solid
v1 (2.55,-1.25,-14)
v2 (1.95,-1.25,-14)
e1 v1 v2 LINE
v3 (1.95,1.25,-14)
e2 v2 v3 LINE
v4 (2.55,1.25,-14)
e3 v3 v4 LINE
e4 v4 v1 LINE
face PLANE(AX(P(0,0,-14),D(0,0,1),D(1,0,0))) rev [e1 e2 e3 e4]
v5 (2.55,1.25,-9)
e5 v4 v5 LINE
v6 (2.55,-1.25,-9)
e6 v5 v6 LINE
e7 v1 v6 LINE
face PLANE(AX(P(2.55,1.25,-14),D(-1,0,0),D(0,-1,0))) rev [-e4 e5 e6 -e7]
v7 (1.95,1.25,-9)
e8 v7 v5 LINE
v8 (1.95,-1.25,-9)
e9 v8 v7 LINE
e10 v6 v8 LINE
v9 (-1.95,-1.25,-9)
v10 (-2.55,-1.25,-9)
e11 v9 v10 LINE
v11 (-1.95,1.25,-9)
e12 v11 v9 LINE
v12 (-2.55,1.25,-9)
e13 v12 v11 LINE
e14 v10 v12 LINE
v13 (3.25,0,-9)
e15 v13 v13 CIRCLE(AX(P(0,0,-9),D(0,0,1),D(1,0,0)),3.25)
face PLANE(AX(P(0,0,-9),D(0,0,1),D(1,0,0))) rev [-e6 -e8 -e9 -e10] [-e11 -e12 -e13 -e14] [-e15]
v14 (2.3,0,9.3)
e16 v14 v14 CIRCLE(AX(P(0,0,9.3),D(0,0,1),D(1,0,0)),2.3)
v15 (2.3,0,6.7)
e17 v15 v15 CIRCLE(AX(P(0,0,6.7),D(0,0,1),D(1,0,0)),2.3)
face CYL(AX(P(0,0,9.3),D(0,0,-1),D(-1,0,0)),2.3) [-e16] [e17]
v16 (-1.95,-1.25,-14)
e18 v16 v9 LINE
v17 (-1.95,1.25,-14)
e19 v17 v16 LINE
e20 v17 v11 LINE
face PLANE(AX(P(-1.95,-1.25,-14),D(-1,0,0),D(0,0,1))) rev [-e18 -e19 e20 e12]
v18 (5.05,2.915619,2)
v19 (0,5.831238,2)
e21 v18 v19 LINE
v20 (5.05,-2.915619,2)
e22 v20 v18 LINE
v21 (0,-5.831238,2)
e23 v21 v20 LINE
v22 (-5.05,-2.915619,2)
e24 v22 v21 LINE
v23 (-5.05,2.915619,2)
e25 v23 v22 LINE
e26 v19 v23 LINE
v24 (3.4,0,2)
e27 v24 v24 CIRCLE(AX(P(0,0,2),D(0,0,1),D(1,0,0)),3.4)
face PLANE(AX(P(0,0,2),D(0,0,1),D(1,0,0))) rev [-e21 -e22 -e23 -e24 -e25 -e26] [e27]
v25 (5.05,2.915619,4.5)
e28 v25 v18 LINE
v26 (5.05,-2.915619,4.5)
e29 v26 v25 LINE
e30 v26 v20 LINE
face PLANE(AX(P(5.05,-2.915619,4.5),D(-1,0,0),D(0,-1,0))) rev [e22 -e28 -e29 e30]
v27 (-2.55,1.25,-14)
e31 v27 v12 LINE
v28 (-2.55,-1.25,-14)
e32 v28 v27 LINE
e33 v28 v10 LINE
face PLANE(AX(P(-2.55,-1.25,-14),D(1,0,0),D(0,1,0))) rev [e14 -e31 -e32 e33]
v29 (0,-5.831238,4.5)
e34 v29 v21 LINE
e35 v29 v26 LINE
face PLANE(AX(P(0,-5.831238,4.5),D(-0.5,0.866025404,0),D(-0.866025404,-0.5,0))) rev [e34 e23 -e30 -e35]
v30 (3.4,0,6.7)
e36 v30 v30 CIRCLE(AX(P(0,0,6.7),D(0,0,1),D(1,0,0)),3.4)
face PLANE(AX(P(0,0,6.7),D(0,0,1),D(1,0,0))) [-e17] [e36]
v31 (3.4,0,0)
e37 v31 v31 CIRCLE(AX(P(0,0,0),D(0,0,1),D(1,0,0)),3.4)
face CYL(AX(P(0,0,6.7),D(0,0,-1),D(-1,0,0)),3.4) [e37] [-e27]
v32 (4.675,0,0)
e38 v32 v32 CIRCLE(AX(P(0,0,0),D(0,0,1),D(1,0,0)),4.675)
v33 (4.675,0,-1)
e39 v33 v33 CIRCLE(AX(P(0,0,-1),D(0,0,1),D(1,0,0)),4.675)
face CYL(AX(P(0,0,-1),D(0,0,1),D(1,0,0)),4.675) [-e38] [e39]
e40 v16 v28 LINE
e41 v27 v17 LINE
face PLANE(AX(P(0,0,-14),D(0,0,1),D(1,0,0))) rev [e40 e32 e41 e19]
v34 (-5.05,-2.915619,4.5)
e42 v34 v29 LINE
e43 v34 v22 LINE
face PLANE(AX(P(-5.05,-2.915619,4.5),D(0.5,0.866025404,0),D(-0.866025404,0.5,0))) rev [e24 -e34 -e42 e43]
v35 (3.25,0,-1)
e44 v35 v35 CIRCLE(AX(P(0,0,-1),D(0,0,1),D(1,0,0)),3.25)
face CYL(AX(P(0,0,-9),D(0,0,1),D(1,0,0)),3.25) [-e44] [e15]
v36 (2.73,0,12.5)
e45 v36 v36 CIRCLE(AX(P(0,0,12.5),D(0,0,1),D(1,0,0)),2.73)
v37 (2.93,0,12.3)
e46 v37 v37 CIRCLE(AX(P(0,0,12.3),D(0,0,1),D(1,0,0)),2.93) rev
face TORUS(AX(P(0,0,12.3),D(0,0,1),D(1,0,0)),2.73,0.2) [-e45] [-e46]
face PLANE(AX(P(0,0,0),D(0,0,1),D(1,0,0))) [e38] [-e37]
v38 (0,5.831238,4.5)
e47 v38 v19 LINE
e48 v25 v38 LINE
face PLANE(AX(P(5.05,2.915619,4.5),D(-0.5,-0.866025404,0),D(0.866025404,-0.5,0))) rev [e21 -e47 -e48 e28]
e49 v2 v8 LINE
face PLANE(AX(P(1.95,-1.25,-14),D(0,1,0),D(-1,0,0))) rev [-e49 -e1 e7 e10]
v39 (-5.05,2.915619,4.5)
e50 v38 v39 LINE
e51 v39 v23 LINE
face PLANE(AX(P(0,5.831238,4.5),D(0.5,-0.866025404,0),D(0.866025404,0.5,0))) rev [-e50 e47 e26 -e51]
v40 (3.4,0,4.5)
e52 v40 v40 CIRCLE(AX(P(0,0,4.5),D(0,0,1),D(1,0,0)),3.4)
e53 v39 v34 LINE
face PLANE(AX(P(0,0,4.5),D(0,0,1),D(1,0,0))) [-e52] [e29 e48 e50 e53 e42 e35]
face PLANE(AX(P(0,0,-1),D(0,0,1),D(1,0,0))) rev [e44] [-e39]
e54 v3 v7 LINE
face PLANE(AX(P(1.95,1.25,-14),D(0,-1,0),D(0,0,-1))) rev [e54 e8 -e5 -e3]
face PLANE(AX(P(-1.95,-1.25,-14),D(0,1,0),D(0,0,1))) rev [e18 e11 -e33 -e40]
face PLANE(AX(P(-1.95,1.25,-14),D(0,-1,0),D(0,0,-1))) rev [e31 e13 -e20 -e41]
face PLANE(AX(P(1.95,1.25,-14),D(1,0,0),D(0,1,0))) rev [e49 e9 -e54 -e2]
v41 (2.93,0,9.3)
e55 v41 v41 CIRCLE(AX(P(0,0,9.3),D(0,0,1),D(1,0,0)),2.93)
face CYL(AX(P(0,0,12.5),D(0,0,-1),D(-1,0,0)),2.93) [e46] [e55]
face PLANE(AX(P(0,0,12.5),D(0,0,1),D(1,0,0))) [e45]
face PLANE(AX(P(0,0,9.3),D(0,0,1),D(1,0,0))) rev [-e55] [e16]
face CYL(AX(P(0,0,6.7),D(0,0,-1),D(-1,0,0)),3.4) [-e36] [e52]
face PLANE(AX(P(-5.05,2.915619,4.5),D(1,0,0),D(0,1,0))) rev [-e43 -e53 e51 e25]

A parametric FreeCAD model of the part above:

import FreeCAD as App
import Part
import Sketcher
Q = App.Units.Quantity


def edges_at(feature, points):
    """Names of the edges that pass closest to the given points."""
    edges = feature.Shape.Edges
    near = lambda p: min(range(len(edges)), key=lambda i: edges[i].distToShape(Part.Vertex(*p))[0])
    return sorted({f"Edge{near(p) + 1}" for p in points})


def add_polygon(sketch, points):
    """Adds a closed chain of lines whose ends are joined by coincident constraints."""
    first, n = sketch.GeometryCount, len(points)
    for a, b in zip(points, points[1:] + points[:1]):
        sketch.addGeometry(Part.LineSegment(App.Vector(*a, 0), App.Vector(*b, 0)), False)
    for i in range(n):
        sketch.addConstraint(Sketcher.Constraint("Coincident", first + i, 2, first + (i + 1) % n, 1))

doc = App.newDocument("Part")
body = doc.addObject("PartDesign::Body", "Body")

sketch1 = body.newObject("Sketcher::SketchObject", "Sketch")
sketch1.AttachmentSupport = (doc.getObject("XY_Plane"), [""])
sketch1.MapMode = "FlatFace"
sketch1.addGeometry(Part.Circle(App.Vector(0, 0, 0), App.Vector(0, 0, 1), 4.675), False)
sketch1.addConstraint([
    Sketcher.Constraint("Coincident", 0, 3, -1, 1),
    Sketcher.Constraint("Diameter", 0, Q("9.35 mm")),
])
pad1 = body.newObject("PartDesign::Pad", "Pad")
pad1.Profile = sketch1
pad1.Length = 1
pad1.Reversed = True

sketch2 = body.newObject("Sketcher::SketchObject", "Sketch001")
sketch2.AttachmentSupport = (doc.getObject("XY_Plane"), [""])
sketch2.MapMode = "FlatFace"
sketch2.addGeometry(Part.Circle(App.Vector(0, 0, 0), App.Vector(0, 0, 1), 3.4), False)
sketch2.addConstraint([
    Sketcher.Constraint("Coincident", 0, 3, -1, 1),
    Sketcher.Constraint("Diameter", 0, Q("6.8 mm")),
])
pad2 = body.newObject("PartDesign::Pad", "Pad001")
pad2.Profile = sketch2
pad2.Length = 6.7

sketch3 = body.newObject("Sketcher::SketchObject", "Sketch002")
sketch3.AttachmentSupport = (doc.getObject("XY_Plane"), [""])
sketch3.MapMode = "FlatFace"
sketch3.AttachmentOffset = App.Placement(App.Vector(0, 0, 6.7), App.Rotation())
sketch3.addGeometry(Part.Circle(App.Vector(0, 0, 0), App.Vector(0, 0, 1), 2.3), False)
sketch3.addConstraint([
    Sketcher.Constraint("Coincident", 0, 3, -1, 1),
    Sketcher.Constraint("Diameter", 0, Q("4.6 mm")),
])
pad3 = body.newObject("PartDesign::Pad", "Pad002")
pad3.Profile = sketch3
pad3.Length = 2.6

sketch4 = body.newObject("Sketcher::SketchObject", "Sketch003")
sketch4.AttachmentSupport = (doc.getObject("XY_Plane"), [""])
sketch4.MapMode = "FlatFace"
sketch4.AttachmentOffset = App.Placement(App.Vector(0, 0, 9.3), App.Rotation())
sketch4.addGeometry(Part.Circle(App.Vector(0, 0, 0), App.Vector(0, 0, 1), 2.93), False)
sketch4.addConstraint([
    Sketcher.Constraint("Coincident", 0, 3, -1, 1),
    Sketcher.Constraint("Diameter", 0, Q("5.86 mm")),
])
pad4 = body.newObject("PartDesign::Pad", "Pad003")
pad4.Profile = sketch4
pad4.Length = 3.2
doc.recompute()

fillet = body.newObject("PartDesign::Fillet", "Fillet")
fillet.Base = (pad4, edges_at(pad4, [(-2.93, 0, 12.5)]))
fillet.Radius = 0.2

sketch5 = body.newObject("Sketcher::SketchObject", "Sketch004")
sketch5.AttachmentSupport = (doc.getObject("XY_Plane"), [""])
sketch5.MapMode = "FlatFace"
sketch5.addGeometry(Part.Circle(App.Vector(0, 0, 0), App.Vector(0, 0, 1), 3.25), False)
sketch5.addConstraint([
    Sketcher.Constraint("Coincident", 0, 3, -1, 1),
    Sketcher.Constraint("Diameter", 0, Q("6.5 mm")),
])
pad5 = body.newObject("PartDesign::Pad", "Pad004")
pad5.Profile = sketch5
pad5.Length = 9
pad5.Reversed = True

sketch6 = body.newObject("Sketcher::SketchObject", "Sketch005")
sketch6.AttachmentSupport = (doc.getObject("XY_Plane"), [""])
sketch6.MapMode = "FlatFace"
sketch6.AttachmentOffset = App.Placement(App.Vector(0, 0, -9), App.Rotation())
add_polygon(sketch6, [(2.55, 1.25), (2.55, -1.25), (1.95, -1.25), (1.95, 1.25)])
add_polygon(sketch6, [(-1.95, 1.25), (-1.95, -1.25), (-2.55, -1.25), (-2.55, 1.25)])
sketch6.addConstraint([
    Sketcher.Constraint("Vertical", 0),
    Sketcher.Constraint("Horizontal", 1),
    Sketcher.Constraint("Vertical", 2),
    Sketcher.Constraint("Horizontal", 3),
    Sketcher.Constraint("Vertical", 4),
    Sketcher.Constraint("Horizontal", 5),
    Sketcher.Constraint("Vertical", 6),
    Sketcher.Constraint("Horizontal", 7),
    Sketcher.Constraint("Symmetric", 2, 2, 4, 2, -1, 1),
    Sketcher.Constraint("Symmetric", 0, 2, 6, 2, -1, 1),
    Sketcher.Constraint("Horizontal", 1, 2, 4, 2),
    Sketcher.Constraint("DistanceX", 1, 2, 1, 1, Q("0.6 mm")),
    Sketcher.Constraint("DistanceY", 0, 2, 0, 1, Q("2.5 mm")),
    Sketcher.Constraint("DistanceX", 4, 2, 1, 2, Q("3.9 mm")),
])
pad6 = body.newObject("PartDesign::Pad", "Pad005")
pad6.Profile = sketch6
pad6.Length = 5
pad6.Reversed = True

sketch7 = body.newObject("Sketcher::SketchObject", "Sketch006")
sketch7.AttachmentSupport = (doc.getObject("XY_Plane"), [""])
sketch7.MapMode = "FlatFace"
sketch7.AttachmentOffset = App.Placement(App.Vector(0, 0, 2), App.Rotation())
add_polygon(sketch7, [(0, 5.831238), (-5.05, 2.915619), (-5.05, -2.915619), (0, -5.831238), (5.05, -2.915619), (5.05, 2.915619)])
sketch7.addConstraint([
    Sketcher.Constraint("Vertical", 1),
    Sketcher.Constraint("Vertical", 4),
    Sketcher.Constraint("Symmetric", 0, 2, 3, 2, -1, 1),
    Sketcher.Constraint("Symmetric", 2, 2, 5, 2, -1, 1),
    Sketcher.Constraint("PointOnObject", 2, 2, -2),
    Sketcher.Constraint("Parallel", 2, 5),
    Sketcher.Constraint("Horizontal", 1, 2, 3, 2),
    Sketcher.Constraint("Angle", 0, Q("-150 deg")),
    Sketcher.Constraint("DistanceX", 1, 2, 3, 2, Q("10.1 mm")),
    Sketcher.Constraint("DistanceY", 1, 2, 1, 1, Q("5.831238 mm")),
])
pad7 = body.newObject("PartDesign::Pad", "Pad006")
pad7.Profile = sketch7
pad7.Length = 2.5

doc.recompute()
